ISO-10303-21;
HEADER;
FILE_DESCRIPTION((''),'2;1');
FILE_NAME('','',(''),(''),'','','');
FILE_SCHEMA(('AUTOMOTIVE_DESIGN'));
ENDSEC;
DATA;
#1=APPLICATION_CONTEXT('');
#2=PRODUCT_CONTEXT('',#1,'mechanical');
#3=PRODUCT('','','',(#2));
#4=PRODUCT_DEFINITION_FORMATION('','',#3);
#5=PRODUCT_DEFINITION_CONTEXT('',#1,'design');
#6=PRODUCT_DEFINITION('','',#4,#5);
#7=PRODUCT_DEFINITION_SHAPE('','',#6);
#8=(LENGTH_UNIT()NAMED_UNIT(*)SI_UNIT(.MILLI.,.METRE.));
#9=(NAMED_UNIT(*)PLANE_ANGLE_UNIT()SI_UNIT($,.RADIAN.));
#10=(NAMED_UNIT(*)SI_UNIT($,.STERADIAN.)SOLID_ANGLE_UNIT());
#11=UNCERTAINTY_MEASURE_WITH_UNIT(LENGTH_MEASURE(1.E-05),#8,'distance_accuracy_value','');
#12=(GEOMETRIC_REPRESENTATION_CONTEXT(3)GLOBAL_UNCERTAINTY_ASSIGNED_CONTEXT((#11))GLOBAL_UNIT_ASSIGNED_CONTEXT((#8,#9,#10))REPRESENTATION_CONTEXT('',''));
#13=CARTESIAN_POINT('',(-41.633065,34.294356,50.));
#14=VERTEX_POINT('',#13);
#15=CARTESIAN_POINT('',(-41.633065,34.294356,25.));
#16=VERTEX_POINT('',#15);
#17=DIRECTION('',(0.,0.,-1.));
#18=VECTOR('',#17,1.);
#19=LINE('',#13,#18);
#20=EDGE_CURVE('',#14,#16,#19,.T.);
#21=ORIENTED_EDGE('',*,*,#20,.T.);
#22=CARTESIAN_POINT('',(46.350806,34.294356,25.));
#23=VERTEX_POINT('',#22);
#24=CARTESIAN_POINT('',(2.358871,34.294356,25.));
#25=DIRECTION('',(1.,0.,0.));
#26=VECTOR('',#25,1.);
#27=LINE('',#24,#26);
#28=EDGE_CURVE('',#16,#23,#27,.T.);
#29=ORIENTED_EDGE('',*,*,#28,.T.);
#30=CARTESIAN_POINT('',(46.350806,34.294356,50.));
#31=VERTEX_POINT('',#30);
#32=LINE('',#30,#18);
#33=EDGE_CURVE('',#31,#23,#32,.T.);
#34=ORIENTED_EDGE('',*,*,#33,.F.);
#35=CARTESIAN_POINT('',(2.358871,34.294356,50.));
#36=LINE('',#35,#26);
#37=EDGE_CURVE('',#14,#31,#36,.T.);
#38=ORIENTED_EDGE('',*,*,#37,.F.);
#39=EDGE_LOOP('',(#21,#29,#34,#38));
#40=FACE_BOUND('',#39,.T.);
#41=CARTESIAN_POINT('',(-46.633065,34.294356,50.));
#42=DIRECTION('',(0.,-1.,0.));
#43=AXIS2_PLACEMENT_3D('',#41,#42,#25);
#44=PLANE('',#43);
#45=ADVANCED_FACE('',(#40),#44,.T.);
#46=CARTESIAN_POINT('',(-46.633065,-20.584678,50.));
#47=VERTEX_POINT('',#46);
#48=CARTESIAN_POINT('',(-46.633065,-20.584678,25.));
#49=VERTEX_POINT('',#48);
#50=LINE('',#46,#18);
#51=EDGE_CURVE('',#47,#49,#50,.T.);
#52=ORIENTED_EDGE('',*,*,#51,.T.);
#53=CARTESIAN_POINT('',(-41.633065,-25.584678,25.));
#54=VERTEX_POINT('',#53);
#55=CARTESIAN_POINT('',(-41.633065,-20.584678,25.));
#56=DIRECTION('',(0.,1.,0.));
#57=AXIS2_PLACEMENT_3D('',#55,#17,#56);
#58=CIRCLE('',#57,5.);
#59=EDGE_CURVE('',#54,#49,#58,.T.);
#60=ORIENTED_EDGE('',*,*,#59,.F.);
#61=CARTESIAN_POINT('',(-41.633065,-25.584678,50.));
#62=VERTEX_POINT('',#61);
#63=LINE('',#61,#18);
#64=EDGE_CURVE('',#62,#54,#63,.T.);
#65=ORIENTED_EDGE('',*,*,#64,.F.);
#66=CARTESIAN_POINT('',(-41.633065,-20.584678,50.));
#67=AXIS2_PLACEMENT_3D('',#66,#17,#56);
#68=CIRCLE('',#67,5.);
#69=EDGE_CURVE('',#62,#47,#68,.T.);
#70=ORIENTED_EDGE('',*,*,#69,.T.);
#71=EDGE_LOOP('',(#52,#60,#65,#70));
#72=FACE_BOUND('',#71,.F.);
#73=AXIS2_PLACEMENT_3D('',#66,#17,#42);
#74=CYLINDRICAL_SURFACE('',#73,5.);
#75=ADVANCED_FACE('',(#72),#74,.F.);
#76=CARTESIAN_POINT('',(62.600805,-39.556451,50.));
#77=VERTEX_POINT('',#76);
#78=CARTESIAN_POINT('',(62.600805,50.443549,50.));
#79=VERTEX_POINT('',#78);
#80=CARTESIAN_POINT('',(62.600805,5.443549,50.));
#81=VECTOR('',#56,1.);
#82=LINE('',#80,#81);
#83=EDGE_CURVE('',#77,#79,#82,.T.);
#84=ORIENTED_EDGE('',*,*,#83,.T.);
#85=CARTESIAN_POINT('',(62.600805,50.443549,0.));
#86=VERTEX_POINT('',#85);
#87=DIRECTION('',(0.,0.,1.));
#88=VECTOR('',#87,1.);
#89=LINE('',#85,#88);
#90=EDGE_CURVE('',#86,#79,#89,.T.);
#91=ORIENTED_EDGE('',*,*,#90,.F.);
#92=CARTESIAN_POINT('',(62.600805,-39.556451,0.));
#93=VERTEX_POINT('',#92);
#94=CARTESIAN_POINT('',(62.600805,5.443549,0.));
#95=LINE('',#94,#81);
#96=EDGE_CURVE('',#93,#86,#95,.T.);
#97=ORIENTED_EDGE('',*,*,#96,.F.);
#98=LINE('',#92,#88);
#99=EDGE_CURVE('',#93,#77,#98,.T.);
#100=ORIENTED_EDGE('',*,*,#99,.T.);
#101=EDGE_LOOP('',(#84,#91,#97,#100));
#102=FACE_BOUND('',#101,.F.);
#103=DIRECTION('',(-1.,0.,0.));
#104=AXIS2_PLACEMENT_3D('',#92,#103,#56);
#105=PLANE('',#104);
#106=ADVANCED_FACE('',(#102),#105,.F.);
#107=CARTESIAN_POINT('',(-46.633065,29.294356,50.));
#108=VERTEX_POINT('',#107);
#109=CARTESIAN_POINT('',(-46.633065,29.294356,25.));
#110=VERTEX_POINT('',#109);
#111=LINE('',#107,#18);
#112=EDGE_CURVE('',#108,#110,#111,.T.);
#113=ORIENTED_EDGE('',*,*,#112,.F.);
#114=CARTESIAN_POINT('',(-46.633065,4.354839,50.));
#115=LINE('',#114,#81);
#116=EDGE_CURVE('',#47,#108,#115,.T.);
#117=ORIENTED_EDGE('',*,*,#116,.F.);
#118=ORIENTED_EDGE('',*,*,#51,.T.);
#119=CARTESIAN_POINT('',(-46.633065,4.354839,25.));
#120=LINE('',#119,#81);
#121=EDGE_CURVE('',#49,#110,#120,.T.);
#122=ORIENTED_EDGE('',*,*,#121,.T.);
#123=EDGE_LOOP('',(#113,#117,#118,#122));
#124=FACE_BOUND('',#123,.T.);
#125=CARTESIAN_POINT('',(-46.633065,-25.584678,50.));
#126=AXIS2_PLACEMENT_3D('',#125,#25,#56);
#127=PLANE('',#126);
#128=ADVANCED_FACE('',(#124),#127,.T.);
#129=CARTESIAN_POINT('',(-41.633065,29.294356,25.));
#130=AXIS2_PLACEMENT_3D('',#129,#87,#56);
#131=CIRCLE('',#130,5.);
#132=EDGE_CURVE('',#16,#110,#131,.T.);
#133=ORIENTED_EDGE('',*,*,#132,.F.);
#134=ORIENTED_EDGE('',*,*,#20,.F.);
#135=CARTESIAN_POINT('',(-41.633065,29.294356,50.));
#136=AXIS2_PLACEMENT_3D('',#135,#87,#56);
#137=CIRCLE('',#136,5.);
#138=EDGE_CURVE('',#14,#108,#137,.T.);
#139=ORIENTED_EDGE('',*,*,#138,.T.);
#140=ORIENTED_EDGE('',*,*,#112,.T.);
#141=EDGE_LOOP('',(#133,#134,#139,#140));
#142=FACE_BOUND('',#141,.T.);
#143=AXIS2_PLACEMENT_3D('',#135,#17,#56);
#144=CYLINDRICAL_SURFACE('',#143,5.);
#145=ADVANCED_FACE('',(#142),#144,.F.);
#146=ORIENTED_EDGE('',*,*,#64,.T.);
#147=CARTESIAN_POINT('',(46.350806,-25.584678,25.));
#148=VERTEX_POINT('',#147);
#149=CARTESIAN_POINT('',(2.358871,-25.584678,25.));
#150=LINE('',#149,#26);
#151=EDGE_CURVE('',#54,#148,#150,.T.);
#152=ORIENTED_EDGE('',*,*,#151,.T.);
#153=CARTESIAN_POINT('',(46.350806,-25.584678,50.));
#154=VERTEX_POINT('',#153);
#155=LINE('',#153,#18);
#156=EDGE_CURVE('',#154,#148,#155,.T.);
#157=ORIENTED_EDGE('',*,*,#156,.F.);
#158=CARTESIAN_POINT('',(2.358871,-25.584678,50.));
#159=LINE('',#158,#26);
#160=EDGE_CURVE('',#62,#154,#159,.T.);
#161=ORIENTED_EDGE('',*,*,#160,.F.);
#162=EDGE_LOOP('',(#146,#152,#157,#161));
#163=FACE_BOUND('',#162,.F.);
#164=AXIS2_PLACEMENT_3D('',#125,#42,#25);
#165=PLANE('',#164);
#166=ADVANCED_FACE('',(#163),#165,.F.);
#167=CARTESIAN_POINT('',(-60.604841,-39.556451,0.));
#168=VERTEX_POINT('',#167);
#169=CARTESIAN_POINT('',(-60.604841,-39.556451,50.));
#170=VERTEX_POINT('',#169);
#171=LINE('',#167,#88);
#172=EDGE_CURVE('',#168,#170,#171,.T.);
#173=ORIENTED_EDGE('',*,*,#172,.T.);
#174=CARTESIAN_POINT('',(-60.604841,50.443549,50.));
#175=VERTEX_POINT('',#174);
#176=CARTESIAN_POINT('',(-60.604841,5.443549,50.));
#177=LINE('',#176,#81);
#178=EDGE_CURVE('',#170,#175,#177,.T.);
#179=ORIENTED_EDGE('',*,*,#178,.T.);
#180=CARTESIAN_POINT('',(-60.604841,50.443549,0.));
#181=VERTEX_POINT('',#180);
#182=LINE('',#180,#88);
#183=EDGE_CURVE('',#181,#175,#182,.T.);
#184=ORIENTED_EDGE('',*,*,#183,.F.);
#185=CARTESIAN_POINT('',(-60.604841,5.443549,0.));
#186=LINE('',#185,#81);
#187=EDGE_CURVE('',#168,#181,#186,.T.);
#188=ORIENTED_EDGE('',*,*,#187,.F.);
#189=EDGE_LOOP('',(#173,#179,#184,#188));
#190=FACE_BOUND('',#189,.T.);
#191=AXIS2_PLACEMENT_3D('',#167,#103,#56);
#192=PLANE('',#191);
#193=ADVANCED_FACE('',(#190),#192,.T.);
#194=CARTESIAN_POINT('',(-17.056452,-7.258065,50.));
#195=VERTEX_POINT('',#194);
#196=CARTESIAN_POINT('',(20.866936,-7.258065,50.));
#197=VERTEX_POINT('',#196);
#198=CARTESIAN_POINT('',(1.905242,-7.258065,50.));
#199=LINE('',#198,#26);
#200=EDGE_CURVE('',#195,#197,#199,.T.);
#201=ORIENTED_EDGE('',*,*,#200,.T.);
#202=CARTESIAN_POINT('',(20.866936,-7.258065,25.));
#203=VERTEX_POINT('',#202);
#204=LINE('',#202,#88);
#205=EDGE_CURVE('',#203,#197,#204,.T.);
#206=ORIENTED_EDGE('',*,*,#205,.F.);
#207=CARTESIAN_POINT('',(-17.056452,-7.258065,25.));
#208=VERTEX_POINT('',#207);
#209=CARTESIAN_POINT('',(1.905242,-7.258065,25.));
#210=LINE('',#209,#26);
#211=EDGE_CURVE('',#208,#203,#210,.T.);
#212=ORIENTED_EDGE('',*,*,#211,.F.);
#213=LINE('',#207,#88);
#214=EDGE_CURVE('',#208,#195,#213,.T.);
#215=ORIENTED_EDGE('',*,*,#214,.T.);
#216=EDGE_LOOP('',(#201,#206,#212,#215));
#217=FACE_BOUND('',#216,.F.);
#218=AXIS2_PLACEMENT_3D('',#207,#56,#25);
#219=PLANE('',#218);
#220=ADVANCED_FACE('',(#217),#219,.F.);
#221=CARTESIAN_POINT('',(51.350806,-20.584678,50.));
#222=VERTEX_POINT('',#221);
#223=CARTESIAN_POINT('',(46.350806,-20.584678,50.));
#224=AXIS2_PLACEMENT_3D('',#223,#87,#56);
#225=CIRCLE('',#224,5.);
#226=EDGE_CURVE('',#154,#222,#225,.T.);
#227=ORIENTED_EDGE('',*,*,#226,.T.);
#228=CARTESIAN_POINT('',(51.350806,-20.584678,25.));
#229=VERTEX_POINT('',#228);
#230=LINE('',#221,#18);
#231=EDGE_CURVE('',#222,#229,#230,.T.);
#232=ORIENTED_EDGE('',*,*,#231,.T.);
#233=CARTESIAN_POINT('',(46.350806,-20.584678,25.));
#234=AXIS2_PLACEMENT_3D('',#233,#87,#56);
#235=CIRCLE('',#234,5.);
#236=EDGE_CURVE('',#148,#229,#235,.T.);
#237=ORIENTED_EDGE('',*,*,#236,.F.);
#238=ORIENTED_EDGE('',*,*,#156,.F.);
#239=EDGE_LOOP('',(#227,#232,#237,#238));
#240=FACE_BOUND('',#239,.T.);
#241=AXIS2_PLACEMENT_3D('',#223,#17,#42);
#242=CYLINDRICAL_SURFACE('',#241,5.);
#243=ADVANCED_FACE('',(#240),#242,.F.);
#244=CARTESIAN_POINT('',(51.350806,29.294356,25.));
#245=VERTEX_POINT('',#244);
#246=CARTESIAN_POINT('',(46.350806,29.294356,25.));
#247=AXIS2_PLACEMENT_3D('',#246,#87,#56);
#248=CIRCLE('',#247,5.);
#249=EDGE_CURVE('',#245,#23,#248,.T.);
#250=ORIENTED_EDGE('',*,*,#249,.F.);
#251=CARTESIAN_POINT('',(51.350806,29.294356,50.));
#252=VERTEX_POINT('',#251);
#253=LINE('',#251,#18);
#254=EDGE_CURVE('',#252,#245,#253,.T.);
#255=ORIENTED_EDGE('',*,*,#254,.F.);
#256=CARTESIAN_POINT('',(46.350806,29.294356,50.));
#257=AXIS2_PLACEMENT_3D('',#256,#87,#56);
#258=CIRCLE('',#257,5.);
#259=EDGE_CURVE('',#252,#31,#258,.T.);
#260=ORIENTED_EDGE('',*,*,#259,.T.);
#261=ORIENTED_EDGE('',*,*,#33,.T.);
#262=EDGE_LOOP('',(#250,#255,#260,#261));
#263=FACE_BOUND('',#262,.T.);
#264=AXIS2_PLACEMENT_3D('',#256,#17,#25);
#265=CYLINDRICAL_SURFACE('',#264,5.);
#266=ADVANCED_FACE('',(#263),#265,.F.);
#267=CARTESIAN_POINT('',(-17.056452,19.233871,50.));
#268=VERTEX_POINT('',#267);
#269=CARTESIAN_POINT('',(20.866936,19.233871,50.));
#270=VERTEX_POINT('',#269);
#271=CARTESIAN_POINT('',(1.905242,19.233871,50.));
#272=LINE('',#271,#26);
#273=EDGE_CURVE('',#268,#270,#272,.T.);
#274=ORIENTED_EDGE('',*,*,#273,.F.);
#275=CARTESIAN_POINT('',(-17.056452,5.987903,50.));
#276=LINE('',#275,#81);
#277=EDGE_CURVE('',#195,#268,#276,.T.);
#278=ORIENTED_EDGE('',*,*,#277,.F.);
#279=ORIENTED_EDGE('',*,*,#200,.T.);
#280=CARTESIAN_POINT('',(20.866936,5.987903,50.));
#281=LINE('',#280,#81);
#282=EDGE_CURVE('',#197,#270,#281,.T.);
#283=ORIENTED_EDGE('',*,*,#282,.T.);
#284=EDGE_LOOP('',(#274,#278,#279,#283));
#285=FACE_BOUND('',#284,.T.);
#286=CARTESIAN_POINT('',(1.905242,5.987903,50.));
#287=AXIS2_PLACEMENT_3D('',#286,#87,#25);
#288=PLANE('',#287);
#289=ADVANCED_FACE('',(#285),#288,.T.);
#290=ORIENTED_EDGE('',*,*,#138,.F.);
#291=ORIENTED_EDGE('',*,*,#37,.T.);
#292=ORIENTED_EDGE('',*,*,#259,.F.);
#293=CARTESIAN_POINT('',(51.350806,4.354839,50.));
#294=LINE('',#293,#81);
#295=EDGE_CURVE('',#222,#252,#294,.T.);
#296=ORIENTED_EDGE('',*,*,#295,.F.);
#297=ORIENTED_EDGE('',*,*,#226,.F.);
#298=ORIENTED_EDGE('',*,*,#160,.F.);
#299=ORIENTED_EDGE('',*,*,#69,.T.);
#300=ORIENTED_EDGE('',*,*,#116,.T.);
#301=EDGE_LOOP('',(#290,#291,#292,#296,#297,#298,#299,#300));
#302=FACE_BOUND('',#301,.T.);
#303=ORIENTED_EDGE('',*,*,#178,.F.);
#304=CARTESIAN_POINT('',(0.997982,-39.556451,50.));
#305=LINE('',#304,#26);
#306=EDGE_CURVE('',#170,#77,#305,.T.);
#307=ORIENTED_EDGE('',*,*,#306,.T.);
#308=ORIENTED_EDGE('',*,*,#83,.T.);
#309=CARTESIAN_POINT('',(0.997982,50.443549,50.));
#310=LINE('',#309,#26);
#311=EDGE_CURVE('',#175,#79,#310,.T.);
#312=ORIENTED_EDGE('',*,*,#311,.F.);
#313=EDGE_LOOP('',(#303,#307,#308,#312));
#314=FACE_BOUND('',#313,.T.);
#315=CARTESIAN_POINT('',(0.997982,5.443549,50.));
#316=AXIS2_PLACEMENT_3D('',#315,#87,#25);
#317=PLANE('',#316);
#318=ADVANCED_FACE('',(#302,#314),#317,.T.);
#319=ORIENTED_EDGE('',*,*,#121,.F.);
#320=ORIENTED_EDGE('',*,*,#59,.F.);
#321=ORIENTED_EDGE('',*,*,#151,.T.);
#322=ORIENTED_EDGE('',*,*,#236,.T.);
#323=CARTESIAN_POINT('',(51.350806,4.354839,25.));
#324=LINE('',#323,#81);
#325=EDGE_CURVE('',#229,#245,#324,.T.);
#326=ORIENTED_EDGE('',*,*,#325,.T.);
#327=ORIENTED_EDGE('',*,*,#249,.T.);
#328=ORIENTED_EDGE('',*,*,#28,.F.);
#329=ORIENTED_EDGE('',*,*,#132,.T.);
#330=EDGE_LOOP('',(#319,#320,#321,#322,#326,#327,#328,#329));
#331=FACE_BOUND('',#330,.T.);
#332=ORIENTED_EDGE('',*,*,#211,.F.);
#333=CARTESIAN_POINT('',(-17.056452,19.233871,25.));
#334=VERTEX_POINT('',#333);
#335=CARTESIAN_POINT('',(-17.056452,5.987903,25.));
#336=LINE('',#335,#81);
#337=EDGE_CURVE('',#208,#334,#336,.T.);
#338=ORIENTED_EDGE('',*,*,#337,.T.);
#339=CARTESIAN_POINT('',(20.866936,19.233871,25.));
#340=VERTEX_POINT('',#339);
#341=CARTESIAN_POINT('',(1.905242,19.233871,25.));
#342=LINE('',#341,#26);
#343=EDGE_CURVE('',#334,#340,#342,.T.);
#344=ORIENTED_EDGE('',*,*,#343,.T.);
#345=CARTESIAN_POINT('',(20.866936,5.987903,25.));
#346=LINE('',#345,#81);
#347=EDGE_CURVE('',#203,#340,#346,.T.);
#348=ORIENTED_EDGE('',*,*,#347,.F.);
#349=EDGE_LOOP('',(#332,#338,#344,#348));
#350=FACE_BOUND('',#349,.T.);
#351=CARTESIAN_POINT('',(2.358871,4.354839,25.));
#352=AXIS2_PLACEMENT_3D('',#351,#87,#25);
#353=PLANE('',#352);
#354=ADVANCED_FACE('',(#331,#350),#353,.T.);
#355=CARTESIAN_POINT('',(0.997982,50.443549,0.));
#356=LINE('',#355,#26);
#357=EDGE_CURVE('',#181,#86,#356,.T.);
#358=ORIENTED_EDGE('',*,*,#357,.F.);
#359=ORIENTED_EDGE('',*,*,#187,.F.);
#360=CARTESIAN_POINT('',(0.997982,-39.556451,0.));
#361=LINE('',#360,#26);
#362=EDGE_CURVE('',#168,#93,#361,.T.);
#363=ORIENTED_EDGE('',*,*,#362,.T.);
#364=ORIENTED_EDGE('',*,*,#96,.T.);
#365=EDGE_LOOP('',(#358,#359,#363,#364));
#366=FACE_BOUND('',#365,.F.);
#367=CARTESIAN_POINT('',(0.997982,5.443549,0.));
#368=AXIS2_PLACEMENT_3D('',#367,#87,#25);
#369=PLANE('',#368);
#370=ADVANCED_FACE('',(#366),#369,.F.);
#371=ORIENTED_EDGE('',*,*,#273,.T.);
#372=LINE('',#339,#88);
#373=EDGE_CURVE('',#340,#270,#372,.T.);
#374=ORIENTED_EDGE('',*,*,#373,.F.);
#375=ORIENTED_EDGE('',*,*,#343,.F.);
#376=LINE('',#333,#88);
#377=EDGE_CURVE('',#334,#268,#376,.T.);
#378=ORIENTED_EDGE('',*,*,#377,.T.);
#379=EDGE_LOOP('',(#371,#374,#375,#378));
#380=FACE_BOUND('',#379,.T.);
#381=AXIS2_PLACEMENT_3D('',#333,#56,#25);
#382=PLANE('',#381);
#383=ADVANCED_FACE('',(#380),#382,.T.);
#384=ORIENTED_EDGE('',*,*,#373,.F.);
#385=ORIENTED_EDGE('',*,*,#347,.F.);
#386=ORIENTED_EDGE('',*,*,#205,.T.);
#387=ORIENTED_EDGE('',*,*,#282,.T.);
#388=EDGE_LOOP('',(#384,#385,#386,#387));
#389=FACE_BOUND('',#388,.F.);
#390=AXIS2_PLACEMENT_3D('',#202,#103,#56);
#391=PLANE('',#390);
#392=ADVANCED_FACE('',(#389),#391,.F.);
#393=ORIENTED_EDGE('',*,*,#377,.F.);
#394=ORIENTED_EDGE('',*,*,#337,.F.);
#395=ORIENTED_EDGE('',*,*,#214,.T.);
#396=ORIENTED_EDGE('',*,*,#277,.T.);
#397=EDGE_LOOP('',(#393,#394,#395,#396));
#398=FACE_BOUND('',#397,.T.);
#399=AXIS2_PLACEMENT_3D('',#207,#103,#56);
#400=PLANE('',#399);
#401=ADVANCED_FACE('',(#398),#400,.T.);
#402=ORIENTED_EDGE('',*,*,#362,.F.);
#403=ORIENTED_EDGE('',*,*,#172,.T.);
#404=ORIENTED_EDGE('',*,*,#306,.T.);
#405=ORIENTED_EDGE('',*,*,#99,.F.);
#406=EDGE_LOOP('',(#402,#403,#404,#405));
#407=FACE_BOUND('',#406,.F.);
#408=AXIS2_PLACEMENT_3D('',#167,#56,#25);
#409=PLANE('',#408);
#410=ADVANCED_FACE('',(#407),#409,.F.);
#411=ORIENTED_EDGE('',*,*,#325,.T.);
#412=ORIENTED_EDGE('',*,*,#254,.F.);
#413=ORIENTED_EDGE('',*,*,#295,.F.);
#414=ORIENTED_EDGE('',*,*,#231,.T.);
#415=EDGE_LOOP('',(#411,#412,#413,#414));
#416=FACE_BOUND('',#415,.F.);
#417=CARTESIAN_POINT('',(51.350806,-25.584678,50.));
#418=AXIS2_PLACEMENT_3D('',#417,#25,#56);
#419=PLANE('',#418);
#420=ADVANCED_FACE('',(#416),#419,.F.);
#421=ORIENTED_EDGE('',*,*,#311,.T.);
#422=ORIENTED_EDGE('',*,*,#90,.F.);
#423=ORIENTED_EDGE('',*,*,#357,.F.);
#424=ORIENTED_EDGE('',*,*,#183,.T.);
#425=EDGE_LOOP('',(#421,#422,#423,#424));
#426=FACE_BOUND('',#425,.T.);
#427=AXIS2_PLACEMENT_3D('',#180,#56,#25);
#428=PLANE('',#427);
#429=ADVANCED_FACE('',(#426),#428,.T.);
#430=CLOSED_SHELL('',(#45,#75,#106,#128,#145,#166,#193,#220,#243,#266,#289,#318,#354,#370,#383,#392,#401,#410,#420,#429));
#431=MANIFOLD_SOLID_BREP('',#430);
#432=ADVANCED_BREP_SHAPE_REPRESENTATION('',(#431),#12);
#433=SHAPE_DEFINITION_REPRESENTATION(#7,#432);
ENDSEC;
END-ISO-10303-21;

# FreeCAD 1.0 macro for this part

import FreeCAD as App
import Part
import Sketcher

V = App.Vector
Q = App.Units.Quantity


def edges_at(feature, points):
    """Names of the edges that pass closest to the given points."""
    edges = feature.Shape.Edges
    near = lambda p: min(range(len(edges)), key=lambda i: edges[i].distToShape(Part.Vertex(*p))[0])
    return sorted({f"Edge{near(p) + 1}" for p in points})


def add_polygon(sketch, points):
    """Adds a closed chain of lines whose ends are joined by coincident constraints."""
    first, n = sketch.GeometryCount, len(points)
    for a, b in zip(points, points[1:] + points[:1]):
        sketch.addGeometry(Part.LineSegment(App.Vector(*a, 0), App.Vector(*b, 0)), False)
    for i in range(n):
        sketch.addConstraint(Sketcher.Constraint("Coincident", first + i, 2, first + (i + 1) % n, 1))

doc = App.newDocument("Part")
body = doc.addObject("PartDesign::Body", "Body")

sketch1 = body.newObject("Sketcher::SketchObject", "Sketch")
sketch1.AttachmentSupport = (doc.getObject("XY_Plane"), [""])
sketch1.MapMode = "FlatFace"
add_polygon(sketch1, [(-61, 50), (-61, -40), (63, -40), (63, 50)])
sketch1.addConstraint(Sketcher.Constraint("Vertical", 0))
sketch1.addConstraint(Sketcher.Constraint("Horizontal", 1))
sketch1.addConstraint(Sketcher.Constraint("Vertical", 2))
sketch1.addConstraint(Sketcher.Constraint("Horizontal", 3))
sketch1.addConstraint(Sketcher.Constraint("DistanceY", 0, 2, 0, 1, Q("90 mm")))
sketch1.addConstraint(Sketcher.Constraint("DistanceX", 1, 1, 1, 2, Q("123.205647 mm")))
sketch1.addConstraint(Sketcher.Constraint("DistanceX", 0, 2, -1, 1, Q("60.604841 mm")))
sketch1.addConstraint(Sketcher.Constraint("DistanceY", 0, 2, -1, 1, Q("39.556451 mm")))
pad1 = body.newObject("PartDesign::Pad", "Pad")
pad1.Profile = sketch1
pad1.Length = 50

sketch2 = body.newObject("Sketcher::SketchObject", "Sketch001")
sketch2.AttachmentSupport = (doc.getObject("XY_Plane"), [""])
sketch2.MapMode = "FlatFace"
sketch2.AttachmentOffset = App.Placement(V(0, 0, 50), App.Rotation())
add_polygon(sketch2, [(-47, 34), (-47, -26), (51, -26), (51, 34)])
sketch2.addConstraint(Sketcher.Constraint("Vertical", 0))
sketch2.addConstraint(Sketcher.Constraint("Horizontal", 1))
sketch2.addConstraint(Sketcher.Constraint("Vertical", 2))
sketch2.addConstraint(Sketcher.Constraint("Horizontal", 3))
sketch2.addConstraint(Sketcher.Constraint("DistanceX", 1, 1, 1, 2, Q("97.983871 mm")))
sketch2.addConstraint(Sketcher.Constraint("DistanceY", 0, 2, 0, 1, Q("59.879035 mm")))
sketch2.addConstraint(Sketcher.Constraint("DistanceY", 0, 2, -1, 1, Q("25.584678 mm")))
sketch2.addConstraint(Sketcher.Constraint("DistanceX", 0, 2, -1, 1, Q("46.633065 mm")))
pocket1 = body.newObject("PartDesign::Pocket", "Pocket")
pocket1.Profile = sketch2
pocket1.Length = 25

sketch3 = body.newObject("Sketcher::SketchObject", "Sketch002")
sketch3.AttachmentSupport = (doc.getObject("XY_Plane"), [""])
sketch3.MapMode = "FlatFace"
sketch3.AttachmentOffset = App.Placement(V(0, 0, 25), App.Rotation())
add_polygon(sketch3, [(-17, 19), (-17, -7), (21, -7), (21, 19)])
sketch3.addConstraint(Sketcher.Constraint("Vertical", 0))
sketch3.addConstraint(Sketcher.Constraint("Horizontal", 1))
sketch3.addConstraint(Sketcher.Constraint("Vertical", 2))
sketch3.addConstraint(Sketcher.Constraint("Horizontal", 3))
sketch3.addConstraint(Sketcher.Constraint("DistanceX", 1, 1, 1, 2, Q("37.923388 mm")))
sketch3.addConstraint(Sketcher.Constraint("DistanceY", 0, 2, 0, 1, Q("26.491936 mm")))
sketch3.addConstraint(Sketcher.Constraint("DistanceX", 0, 2, -1, 1, Q("17.056452 mm")))
sketch3.addConstraint(Sketcher.Constraint("DistanceY", -1, 1, 2, 2, Q("19.233871 mm")))
pad2 = body.newObject("PartDesign::Pad", "Pad001")
pad2.Profile = sketch3
pad2.Length = 25
doc.recompute()

fillet = body.newObject("PartDesign::Fillet", "Fillet")
fillet.Base = (pad2, edges_at(pad2, [
    (-46.633, 34.294, 37.5),
    (-46.633, -25.585, 37.5),
    (51.351, -25.585, 37.5),
    (51.351, 34.294, 37.5),
]))
fillet.Radius = 5

doc.recompute()
